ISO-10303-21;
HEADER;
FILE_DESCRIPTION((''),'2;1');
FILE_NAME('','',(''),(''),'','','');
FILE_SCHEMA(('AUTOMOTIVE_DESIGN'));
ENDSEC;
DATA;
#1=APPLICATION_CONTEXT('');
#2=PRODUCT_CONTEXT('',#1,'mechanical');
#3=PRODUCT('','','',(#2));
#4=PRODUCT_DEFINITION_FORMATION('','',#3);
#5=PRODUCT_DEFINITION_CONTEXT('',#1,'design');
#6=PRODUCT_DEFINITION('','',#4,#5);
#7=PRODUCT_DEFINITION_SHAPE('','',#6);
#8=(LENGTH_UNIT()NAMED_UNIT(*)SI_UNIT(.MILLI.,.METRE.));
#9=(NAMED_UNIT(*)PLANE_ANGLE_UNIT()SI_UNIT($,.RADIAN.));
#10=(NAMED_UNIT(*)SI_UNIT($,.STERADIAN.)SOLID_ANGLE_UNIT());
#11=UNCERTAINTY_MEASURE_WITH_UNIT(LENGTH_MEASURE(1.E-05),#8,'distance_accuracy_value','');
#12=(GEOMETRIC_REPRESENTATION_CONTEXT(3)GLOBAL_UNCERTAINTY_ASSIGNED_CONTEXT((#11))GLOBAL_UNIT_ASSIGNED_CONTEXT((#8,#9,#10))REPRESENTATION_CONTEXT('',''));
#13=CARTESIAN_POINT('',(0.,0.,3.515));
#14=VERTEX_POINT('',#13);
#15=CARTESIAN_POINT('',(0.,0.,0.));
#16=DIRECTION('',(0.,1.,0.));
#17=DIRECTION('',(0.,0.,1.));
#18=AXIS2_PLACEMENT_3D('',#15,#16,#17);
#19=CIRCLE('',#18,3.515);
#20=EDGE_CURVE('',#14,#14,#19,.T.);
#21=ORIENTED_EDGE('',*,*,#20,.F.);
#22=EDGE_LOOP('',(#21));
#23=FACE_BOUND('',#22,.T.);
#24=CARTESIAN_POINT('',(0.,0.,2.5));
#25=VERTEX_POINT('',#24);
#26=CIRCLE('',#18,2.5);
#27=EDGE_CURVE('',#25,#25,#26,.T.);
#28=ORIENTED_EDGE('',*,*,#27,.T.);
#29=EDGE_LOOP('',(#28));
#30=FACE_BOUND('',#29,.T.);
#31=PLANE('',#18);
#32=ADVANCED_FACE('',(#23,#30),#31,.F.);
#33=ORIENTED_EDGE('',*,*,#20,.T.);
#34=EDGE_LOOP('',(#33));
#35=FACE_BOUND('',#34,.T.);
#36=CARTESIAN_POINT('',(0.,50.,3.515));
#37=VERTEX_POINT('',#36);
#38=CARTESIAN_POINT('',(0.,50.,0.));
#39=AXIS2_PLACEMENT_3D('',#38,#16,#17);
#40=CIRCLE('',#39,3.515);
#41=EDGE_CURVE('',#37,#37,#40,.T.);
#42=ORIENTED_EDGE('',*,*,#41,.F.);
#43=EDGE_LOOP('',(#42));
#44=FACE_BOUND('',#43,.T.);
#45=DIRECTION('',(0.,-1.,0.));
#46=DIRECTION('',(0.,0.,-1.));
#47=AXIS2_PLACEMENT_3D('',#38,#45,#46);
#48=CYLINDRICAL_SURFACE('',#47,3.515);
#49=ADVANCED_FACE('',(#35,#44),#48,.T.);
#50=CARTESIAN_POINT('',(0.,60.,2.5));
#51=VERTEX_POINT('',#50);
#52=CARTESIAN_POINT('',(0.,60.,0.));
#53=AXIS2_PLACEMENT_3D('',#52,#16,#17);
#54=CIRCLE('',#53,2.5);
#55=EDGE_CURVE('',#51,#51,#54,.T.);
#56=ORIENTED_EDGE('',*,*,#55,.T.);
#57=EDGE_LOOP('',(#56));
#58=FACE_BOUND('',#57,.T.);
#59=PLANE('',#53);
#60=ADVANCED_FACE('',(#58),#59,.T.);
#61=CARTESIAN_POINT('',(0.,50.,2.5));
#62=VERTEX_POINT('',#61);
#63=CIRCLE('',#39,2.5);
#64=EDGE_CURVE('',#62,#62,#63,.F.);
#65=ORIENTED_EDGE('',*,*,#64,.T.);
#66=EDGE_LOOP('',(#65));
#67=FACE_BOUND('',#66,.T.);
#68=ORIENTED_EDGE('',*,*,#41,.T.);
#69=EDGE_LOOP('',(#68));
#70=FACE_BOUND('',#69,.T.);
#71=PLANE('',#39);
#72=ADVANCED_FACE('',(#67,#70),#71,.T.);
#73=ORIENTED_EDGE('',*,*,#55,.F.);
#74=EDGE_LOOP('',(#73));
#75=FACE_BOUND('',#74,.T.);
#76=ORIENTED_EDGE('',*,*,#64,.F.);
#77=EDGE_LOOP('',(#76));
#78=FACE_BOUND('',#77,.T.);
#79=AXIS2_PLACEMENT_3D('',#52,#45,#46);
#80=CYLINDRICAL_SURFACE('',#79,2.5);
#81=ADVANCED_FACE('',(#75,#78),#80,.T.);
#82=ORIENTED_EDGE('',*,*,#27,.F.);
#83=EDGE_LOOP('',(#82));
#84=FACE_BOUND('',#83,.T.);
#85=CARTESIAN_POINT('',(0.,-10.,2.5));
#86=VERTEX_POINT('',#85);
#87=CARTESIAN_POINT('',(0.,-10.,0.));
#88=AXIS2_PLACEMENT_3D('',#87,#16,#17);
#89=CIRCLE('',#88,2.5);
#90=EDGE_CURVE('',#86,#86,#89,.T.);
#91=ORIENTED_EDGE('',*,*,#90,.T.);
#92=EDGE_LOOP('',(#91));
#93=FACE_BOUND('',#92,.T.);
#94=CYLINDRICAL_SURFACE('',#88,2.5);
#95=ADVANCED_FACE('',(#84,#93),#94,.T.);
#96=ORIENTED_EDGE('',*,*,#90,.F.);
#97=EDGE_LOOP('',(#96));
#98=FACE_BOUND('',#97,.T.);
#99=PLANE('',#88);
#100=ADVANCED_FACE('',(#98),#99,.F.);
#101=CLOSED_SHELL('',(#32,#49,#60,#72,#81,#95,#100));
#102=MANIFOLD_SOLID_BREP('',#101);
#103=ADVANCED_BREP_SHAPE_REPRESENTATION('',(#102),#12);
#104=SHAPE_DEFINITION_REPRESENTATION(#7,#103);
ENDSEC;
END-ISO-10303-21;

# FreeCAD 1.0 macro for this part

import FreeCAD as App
import Part
import Sketcher
from FreeCAD import Vector
Q = App.Units.Quantity

doc = App.newDocument("Part")
body = doc.addObject("PartDesign::Body", "Body")

sketch1 = body.newObject("Sketcher::SketchObject", "Sketch")
sketch1.AttachmentSupport = (doc.getObject("XZ_Plane"), [""])
sketch1.MapMode = "FlatFace"
sketch1.addGeometry(Part.Circle(Vector(0, 0, 0), Vector(0, 0, 1), 3.5), False)
sketch1.addConstraint([
    Sketcher.Constraint("Coincident", 0, 3, -1, 1),
    Sketcher.Constraint("Diameter", 0, Q("7.03 mm")),
])
pad1 = body.newObject("PartDesign::Pad", "Pad")
pad1.Profile = sketch1
pad1.Length = 50
pad1.Reversed = True

sketch2 = body.newObject("Sketcher::SketchObject", "Sketch001")
sketch2.AttachmentSupport = (doc.getObject("XZ_Plane"), [""])
sketch2.MapMode = "FlatFace"
sketch2.addGeometry(Part.Circle(Vector(0, 0, 0), Vector(0, 0, 1), 2.5), False)
sketch2.addConstraint([
    Sketcher.Constraint("Coincident", 0, 3, -1, 1),
    Sketcher.Constraint("Diameter", 0, Q("5 mm")),
])
pad2 = body.newObject("PartDesign::Pad", "Pad001")
pad2.Profile = sketch2
pad2.Length = 10

sketch3 = body.newObject("Sketcher::SketchObject", "Sketch002")
sketch3.AttachmentSupport = (doc.getObject("XZ_Plane"), [""])
sketch3.MapMode = "FlatFace"
sketch3.addGeometry(Part.Circle(Vector(0, 0, 0), Vector(0, 0, 1), 2.5), False)
sketch3.addConstraint([
    Sketcher.Constraint("Coincident", 0, 3, -1, 1),
    Sketcher.Constraint("Diameter", 0, Q("5 mm")),
])
pad3 = body.newObject("PartDesign::Pad", "Pad002")
pad3.Profile = sketch3
pad3.Length = 60
pad3.Reversed = True

doc.recompute()
